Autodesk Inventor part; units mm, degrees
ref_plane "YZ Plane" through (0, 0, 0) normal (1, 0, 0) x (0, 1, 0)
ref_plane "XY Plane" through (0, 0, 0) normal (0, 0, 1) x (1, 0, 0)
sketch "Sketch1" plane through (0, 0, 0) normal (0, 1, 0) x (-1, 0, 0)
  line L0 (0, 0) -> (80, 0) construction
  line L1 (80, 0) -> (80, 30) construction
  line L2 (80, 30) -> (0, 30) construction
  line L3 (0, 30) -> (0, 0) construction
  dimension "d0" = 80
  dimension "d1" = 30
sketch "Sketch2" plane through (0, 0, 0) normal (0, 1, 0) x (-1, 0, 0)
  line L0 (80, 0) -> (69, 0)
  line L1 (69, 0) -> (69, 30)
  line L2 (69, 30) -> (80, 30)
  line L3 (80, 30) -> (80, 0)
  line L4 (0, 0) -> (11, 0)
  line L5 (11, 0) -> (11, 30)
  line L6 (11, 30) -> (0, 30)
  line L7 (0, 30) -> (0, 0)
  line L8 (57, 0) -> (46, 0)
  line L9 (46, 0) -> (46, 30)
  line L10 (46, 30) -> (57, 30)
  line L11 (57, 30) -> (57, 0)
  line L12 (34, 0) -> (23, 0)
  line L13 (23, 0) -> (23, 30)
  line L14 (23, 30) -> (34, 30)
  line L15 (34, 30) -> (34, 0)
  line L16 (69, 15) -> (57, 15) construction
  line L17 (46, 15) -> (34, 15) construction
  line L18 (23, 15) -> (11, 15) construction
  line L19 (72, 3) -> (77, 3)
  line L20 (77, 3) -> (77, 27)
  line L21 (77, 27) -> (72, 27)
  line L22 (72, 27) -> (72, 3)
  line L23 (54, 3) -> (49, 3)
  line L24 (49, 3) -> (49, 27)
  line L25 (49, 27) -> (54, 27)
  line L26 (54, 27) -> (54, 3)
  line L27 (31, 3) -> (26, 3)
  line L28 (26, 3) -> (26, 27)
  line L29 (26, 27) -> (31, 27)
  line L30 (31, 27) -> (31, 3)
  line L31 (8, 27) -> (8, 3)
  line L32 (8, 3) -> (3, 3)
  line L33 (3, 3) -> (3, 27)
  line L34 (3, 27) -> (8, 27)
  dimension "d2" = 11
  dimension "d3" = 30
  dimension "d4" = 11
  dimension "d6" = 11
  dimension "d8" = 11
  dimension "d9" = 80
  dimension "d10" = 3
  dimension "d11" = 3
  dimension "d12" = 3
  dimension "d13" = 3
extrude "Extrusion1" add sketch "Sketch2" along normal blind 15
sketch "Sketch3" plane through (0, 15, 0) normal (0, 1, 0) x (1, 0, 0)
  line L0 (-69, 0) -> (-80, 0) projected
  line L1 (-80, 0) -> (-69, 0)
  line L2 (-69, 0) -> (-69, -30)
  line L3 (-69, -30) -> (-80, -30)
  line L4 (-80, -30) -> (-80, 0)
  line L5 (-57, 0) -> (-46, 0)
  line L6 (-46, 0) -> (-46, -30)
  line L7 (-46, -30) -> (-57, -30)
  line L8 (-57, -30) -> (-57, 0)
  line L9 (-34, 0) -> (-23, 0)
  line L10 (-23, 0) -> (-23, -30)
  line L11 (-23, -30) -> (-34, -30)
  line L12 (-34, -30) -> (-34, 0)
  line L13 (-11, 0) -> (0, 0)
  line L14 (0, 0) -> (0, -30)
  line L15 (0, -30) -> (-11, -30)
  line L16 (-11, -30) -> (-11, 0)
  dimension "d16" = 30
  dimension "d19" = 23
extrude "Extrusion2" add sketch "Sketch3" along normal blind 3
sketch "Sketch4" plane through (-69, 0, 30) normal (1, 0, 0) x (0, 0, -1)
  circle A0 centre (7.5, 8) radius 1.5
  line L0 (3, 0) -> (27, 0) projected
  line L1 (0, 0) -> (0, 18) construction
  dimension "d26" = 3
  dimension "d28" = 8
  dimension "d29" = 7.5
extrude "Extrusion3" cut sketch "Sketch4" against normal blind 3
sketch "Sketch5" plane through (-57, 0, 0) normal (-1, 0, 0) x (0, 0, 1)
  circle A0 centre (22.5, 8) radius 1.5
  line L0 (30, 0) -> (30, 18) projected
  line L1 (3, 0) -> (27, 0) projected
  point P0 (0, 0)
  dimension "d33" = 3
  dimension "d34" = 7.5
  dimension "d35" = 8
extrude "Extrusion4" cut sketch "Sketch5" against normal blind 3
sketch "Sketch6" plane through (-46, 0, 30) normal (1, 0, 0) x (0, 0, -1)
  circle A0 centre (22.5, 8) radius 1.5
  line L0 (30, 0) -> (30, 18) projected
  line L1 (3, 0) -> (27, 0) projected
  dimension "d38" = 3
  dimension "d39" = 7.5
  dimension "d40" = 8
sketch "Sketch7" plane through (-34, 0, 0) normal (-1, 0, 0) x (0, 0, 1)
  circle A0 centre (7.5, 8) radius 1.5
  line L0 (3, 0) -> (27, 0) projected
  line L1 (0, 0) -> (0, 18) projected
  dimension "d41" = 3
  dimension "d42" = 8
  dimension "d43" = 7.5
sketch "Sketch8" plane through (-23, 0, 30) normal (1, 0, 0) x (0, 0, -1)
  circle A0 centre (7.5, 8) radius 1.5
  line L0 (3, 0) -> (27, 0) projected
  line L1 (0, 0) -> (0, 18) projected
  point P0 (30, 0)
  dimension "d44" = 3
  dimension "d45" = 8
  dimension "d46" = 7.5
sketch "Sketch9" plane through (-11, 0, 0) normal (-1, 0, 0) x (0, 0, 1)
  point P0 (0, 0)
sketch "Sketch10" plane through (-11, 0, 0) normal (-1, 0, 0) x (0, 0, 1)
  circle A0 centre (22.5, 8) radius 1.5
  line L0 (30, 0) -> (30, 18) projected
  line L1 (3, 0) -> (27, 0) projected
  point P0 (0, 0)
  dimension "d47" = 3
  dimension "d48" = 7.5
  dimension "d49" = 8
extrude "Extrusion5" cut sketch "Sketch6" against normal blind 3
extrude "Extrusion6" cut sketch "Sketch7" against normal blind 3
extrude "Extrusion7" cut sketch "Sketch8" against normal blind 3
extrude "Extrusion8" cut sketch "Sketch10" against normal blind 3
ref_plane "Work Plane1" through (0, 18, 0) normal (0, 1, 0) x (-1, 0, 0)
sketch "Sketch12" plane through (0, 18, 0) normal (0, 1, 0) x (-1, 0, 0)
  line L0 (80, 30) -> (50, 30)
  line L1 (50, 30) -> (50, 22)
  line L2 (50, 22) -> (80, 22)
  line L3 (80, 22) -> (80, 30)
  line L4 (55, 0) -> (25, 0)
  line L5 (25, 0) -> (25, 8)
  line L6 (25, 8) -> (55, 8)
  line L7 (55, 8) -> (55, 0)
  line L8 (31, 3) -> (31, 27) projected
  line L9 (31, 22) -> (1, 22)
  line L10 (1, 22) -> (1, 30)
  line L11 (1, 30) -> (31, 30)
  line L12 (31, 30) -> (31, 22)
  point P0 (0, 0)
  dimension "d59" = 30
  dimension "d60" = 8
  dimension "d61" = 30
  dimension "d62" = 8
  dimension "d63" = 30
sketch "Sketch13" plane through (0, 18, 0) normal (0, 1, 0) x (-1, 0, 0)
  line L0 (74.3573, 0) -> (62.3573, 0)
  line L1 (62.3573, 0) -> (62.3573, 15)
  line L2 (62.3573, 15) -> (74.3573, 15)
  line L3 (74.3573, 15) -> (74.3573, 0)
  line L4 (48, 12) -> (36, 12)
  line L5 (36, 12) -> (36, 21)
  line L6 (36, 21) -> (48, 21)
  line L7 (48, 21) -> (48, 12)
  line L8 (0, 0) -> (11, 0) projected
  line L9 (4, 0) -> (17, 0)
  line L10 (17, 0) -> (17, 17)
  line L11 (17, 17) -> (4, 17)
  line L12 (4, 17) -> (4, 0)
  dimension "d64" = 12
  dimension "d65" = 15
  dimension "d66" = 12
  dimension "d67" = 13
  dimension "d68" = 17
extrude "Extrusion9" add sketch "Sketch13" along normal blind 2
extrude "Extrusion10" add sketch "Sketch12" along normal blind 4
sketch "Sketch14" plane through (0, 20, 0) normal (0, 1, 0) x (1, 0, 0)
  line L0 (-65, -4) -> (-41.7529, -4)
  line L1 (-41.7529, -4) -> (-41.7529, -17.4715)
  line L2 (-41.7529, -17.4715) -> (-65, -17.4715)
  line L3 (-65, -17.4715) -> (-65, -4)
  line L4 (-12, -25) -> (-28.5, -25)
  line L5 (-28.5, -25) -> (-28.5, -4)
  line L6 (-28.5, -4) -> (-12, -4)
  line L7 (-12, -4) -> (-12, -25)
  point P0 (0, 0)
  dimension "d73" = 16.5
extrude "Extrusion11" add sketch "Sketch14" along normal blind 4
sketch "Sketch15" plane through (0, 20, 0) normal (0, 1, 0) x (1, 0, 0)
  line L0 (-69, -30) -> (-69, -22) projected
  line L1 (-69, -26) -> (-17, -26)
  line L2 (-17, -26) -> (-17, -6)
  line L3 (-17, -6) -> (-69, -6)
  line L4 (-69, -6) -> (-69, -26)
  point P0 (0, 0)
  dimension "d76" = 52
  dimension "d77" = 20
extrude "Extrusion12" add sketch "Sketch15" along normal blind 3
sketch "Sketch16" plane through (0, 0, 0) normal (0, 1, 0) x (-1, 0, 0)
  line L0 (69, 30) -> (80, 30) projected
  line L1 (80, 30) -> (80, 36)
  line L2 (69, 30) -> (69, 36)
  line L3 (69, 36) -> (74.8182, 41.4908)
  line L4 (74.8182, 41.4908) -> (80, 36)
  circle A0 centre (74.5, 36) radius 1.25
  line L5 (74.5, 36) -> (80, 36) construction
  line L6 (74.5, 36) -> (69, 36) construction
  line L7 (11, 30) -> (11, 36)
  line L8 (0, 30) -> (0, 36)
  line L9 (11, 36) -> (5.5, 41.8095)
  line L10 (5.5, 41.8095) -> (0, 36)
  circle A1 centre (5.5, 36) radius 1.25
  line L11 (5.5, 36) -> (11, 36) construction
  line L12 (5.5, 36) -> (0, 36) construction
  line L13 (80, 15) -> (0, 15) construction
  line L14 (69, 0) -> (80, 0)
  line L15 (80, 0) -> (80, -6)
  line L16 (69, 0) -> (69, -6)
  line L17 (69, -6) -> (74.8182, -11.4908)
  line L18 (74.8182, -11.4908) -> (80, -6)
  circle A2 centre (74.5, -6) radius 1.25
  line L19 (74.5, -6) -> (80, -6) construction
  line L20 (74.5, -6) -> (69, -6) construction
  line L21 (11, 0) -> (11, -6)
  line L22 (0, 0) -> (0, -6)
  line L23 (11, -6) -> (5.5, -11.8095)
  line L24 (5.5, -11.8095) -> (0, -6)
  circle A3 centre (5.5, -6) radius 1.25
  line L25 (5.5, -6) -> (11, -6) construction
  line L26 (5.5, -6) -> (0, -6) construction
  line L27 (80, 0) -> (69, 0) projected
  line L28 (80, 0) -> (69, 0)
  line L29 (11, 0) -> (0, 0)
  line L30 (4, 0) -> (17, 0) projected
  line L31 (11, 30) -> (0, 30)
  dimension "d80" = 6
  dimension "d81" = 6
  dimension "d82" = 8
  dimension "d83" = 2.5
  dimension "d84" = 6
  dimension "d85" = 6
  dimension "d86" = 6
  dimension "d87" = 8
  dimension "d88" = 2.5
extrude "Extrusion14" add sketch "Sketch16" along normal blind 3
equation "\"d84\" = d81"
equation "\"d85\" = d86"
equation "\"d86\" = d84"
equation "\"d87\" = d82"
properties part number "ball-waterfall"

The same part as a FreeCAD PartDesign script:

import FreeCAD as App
import Part
import Sketcher

doc = App.newDocument("Part")
body = doc.addObject("PartDesign::Body", "Body")
body.AllowCompound = True

sketch1 = doc.addObject("Sketcher::SketchObject", "Sketch")
body.addObject(sketch1)
sketch1.AttachmentSupport = (doc.XZ_Plane, [""])
sketch1.MapMode = "FlatFace"
sketch1.addGeometry(Part.LineSegment(App.Vector(-69, 0, 0), App.Vector(-80, 0, 0)), False)
sketch1.addGeometry(Part.LineSegment(App.Vector(-80, 0, 0), App.Vector(-80, 30, 0)), False)
sketch1.addGeometry(Part.LineSegment(App.Vector(-80, 30, 0), App.Vector(-69, 30, 0)), False)
sketch1.addGeometry(Part.LineSegment(App.Vector(-69, 30, 0), App.Vector(-69, 0, 0)), False)
sketch1.addGeometry(Part.LineSegment(App.Vector(-77, 3, 0), App.Vector(-72, 3, 0)), False)
sketch1.addGeometry(Part.LineSegment(App.Vector(-72, 3, 0), App.Vector(-72, 27, 0)), False)
sketch1.addGeometry(Part.LineSegment(App.Vector(-72, 27, 0), App.Vector(-77, 27, 0)), False)
sketch1.addGeometry(Part.LineSegment(App.Vector(-77, 27, 0), App.Vector(-77, 3, 0)), False)
sketch1.addGeometry(Part.LineSegment(App.Vector(0, 30, 0), App.Vector(0, 0, 0)), False)
sketch1.addGeometry(Part.LineSegment(App.Vector(0, 0, 0), App.Vector(-11, 0, 0)), False)
sketch1.addGeometry(Part.LineSegment(App.Vector(-11, 0, 0), App.Vector(-11, 30, 0)), False)
sketch1.addGeometry(Part.LineSegment(App.Vector(-11, 30, 0), App.Vector(0, 30, 0)), False)
sketch1.addGeometry(Part.LineSegment(App.Vector(-3, 27, 0), App.Vector(-8, 27, 0)), False)
sketch1.addGeometry(Part.LineSegment(App.Vector(-8, 27, 0), App.Vector(-8, 3, 0)), False)
sketch1.addGeometry(Part.LineSegment(App.Vector(-8, 3, 0), App.Vector(-3, 3, 0)), False)
sketch1.addGeometry(Part.LineSegment(App.Vector(-3, 3, 0), App.Vector(-3, 27, 0)), False)
sketch1.addGeometry(Part.LineSegment(App.Vector(-46, 0, 0), App.Vector(-57, 0, 0)), False)
sketch1.addGeometry(Part.LineSegment(App.Vector(-57, 0, 0), App.Vector(-57, 30, 0)), False)
sketch1.addGeometry(Part.LineSegment(App.Vector(-57, 30, 0), App.Vector(-46, 30, 0)), False)
sketch1.addGeometry(Part.LineSegment(App.Vector(-46, 30, 0), App.Vector(-46, 0, 0)), False)
sketch1.addGeometry(Part.LineSegment(App.Vector(-54, 27, 0), App.Vector(-54, 3, 0)), False)
sketch1.addGeometry(Part.LineSegment(App.Vector(-54, 3, 0), App.Vector(-49, 3, 0)), False)
sketch1.addGeometry(Part.LineSegment(App.Vector(-49, 3, 0), App.Vector(-49, 27, 0)), False)
sketch1.addGeometry(Part.LineSegment(App.Vector(-49, 27, 0), App.Vector(-54, 27, 0)), False)
sketch1.addGeometry(Part.LineSegment(App.Vector(-23, 0, 0), App.Vector(-34, 0, 0)), False)
sketch1.addGeometry(Part.LineSegment(App.Vector(-34, 0, 0), App.Vector(-34, 30, 0)), False)
sketch1.addGeometry(Part.LineSegment(App.Vector(-34, 30, 0), App.Vector(-23, 30, 0)), False)
sketch1.addGeometry(Part.LineSegment(App.Vector(-23, 30, 0), App.Vector(-23, 0, 0)), False)
sketch1.addGeometry(Part.LineSegment(App.Vector(-31, 27, 0), App.Vector(-31, 3, 0)), False)
sketch1.addGeometry(Part.LineSegment(App.Vector(-31, 3, 0), App.Vector(-26, 3, 0)), False)
sketch1.addGeometry(Part.LineSegment(App.Vector(-26, 3, 0), App.Vector(-26, 27, 0)), False)
sketch1.addGeometry(Part.LineSegment(App.Vector(-26, 27, 0), App.Vector(-31, 27, 0)), False)
sketch1.addConstraint(Sketcher.Constraint("Coincident", 0, 2, 1, 1))
sketch1.addConstraint(Sketcher.Constraint("Coincident", 1, 2, 2, 1))
sketch1.addConstraint(Sketcher.Constraint("Coincident", 2, 2, 3, 1))
sketch1.addConstraint(Sketcher.Constraint("Coincident", 3, 2, 0, 1))
sketch1.addConstraint(Sketcher.Constraint("Coincident", 4, 2, 5, 1))
sketch1.addConstraint(Sketcher.Constraint("Coincident", 5, 2, 6, 1))
sketch1.addConstraint(Sketcher.Constraint("Coincident", 6, 2, 7, 1))
sketch1.addConstraint(Sketcher.Constraint("Coincident", 7, 2, 4, 1))
sketch1.addConstraint(Sketcher.Constraint("Coincident", 8, 2, 9, 1))
sketch1.addConstraint(Sketcher.Constraint("Coincident", 9, 2, 10, 1))
sketch1.addConstraint(Sketcher.Constraint("Coincident", 10, 2, 11, 1))
sketch1.addConstraint(Sketcher.Constraint("Coincident", 11, 2, 8, 1))
sketch1.addConstraint(Sketcher.Constraint("Coincident", 12, 2, 13, 1))
sketch1.addConstraint(Sketcher.Constraint("Coincident", 13, 2, 14, 1))
sketch1.addConstraint(Sketcher.Constraint("Coincident", 14, 2, 15, 1))
sketch1.addConstraint(Sketcher.Constraint("Coincident", 15, 2, 12, 1))
sketch1.addConstraint(Sketcher.Constraint("Coincident", 16, 2, 17, 1))
sketch1.addConstraint(Sketcher.Constraint("Coincident", 17, 2, 18, 1))
sketch1.addConstraint(Sketcher.Constraint("Coincident", 18, 2, 19, 1))
sketch1.addConstraint(Sketcher.Constraint("Coincident", 19, 2, 16, 1))
sketch1.addConstraint(Sketcher.Constraint("Coincident", 20, 2, 21, 1))
sketch1.addConstraint(Sketcher.Constraint("Coincident", 21, 2, 22, 1))
sketch1.addConstraint(Sketcher.Constraint("Coincident", 22, 2, 23, 1))
sketch1.addConstraint(Sketcher.Constraint("Coincident", 23, 2, 20, 1))
sketch1.addConstraint(Sketcher.Constraint("Coincident", 24, 2, 25, 1))
sketch1.addConstraint(Sketcher.Constraint("Coincident", 25, 2, 26, 1))
sketch1.addConstraint(Sketcher.Constraint("Coincident", 26, 2, 27, 1))
sketch1.addConstraint(Sketcher.Constraint("Coincident", 27, 2, 24, 1))
sketch1.addConstraint(Sketcher.Constraint("Coincident", 28, 2, 29, 1))
sketch1.addConstraint(Sketcher.Constraint("Coincident", 29, 2, 30, 1))
sketch1.addConstraint(Sketcher.Constraint("Coincident", 30, 2, 31, 1))
sketch1.addConstraint(Sketcher.Constraint("Coincident", 31, 2, 28, 1))
sketch1.addConstraint(Sketcher.Constraint("Horizontal", 0))
sketch1.addConstraint(Sketcher.Constraint("Vertical", 1))
sketch1.addConstraint(Sketcher.Constraint("Horizontal", 2))
sketch1.addConstraint(Sketcher.Constraint("Vertical", 3))
sketch1.addConstraint(Sketcher.Constraint("Horizontal", 4))
sketch1.addConstraint(Sketcher.Constraint("Vertical", 5))
sketch1.addConstraint(Sketcher.Constraint("Horizontal", 6))
sketch1.addConstraint(Sketcher.Constraint("Vertical", 7))
sketch1.addConstraint(Sketcher.Constraint("Vertical", 8))
sketch1.addConstraint(Sketcher.Constraint("Horizontal", 9))
sketch1.addConstraint(Sketcher.Constraint("Vertical", 10))
sketch1.addConstraint(Sketcher.Constraint("Horizontal", 11))
sketch1.addConstraint(Sketcher.Constraint("Horizontal", 12))
sketch1.addConstraint(Sketcher.Constraint("Vertical", 13))
sketch1.addConstraint(Sketcher.Constraint("Horizontal", 14))
sketch1.addConstraint(Sketcher.Constraint("Vertical", 15))
sketch1.addConstraint(Sketcher.Constraint("Horizontal", 16))
sketch1.addConstraint(Sketcher.Constraint("Vertical", 17))
sketch1.addConstraint(Sketcher.Constraint("Horizontal", 18))
sketch1.addConstraint(Sketcher.Constraint("Vertical", 19))
sketch1.addConstraint(Sketcher.Constraint("Vertical", 20))
sketch1.addConstraint(Sketcher.Constraint("Horizontal", 21))
sketch1.addConstraint(Sketcher.Constraint("Vertical", 22))
sketch1.addConstraint(Sketcher.Constraint("Horizontal", 23))
sketch1.addConstraint(Sketcher.Constraint("Horizontal", 24))
sketch1.addConstraint(Sketcher.Constraint("Vertical", 25))
sketch1.addConstraint(Sketcher.Constraint("Horizontal", 26))
sketch1.addConstraint(Sketcher.Constraint("Vertical", 27))
sketch1.addConstraint(Sketcher.Constraint("Vertical", 28))
sketch1.addConstraint(Sketcher.Constraint("Horizontal", 29))
sketch1.addConstraint(Sketcher.Constraint("Vertical", 30))
sketch1.addConstraint(Sketcher.Constraint("Horizontal", 31))
sketch1.addConstraint(Sketcher.Constraint("Coincident", 8, 2, -1, 1))
sketch1.addConstraint(Sketcher.Constraint("PointOnObject", 0, 2, -1))
sketch1.addConstraint(Sketcher.Constraint("PointOnObject", 16, 2, -1))
sketch1.addConstraint(Sketcher.Constraint("PointOnObject", 24, 2, -1))
sketch1.addConstraint(Sketcher.Constraint("Horizontal", 2, 2, 10, 2))
sketch1.addConstraint(Sketcher.Constraint("Horizontal", 6, 2, 12, 2))
sketch1.addConstraint(Sketcher.Constraint("Horizontal", 7, 2, 13, 2))
sketch1.addConstraint(Sketcher.Constraint("Horizontal", 11, 2, 17, 2))
sketch1.addConstraint(Sketcher.Constraint("Horizontal", 14, 2, 20, 2))
sketch1.addConstraint(Sketcher.Constraint("Horizontal", 15, 2, 22, 2))
sketch1.addConstraint(Sketcher.Constraint("Horizontal", 18, 2, 25, 2))
sketch1.addConstraint(Sketcher.Constraint("Horizontal", 21, 2, 28, 2))
sketch1.addConstraint(Sketcher.Constraint("Horizontal", 23, 2, 30, 2))
sketch1.addConstraint(Sketcher.Constraint("Equal", 2, 9))
sketch1.addConstraint(Sketcher.Constraint("Equal", 6, 12))
sketch1.addConstraint(Sketcher.Constraint("Equal", 11, 16))
sketch1.addConstraint(Sketcher.Constraint("Equal", 14, 21))
sketch1.addConstraint(Sketcher.Constraint("Equal", 18, 24))
sketch1.addConstraint(Sketcher.Constraint("Equal", 23, 29))
sketch1.addConstraint(Sketcher.Constraint("DistanceX", 0, 2, 0, 1, 11.0))
sketch1.addConstraint(Sketcher.Constraint("DistanceY", 1, 1, 1, 2, 30.0))
sketch1.addConstraint(Sketcher.Constraint("DistanceX", 0, 2, -1, 1, 80.0))
sketch1.addConstraint(Sketcher.Constraint("DistanceY", -1, 1, 4, 2, 3.0))
sketch1.addConstraint(Sketcher.Constraint("DistanceX", 14, 2, -1, 1, 3.0))
sketch1.addConstraint(Sketcher.Constraint("DistanceX", 4, 2, 3, 2, 3.0))
sketch1.addConstraint(Sketcher.Constraint("DistanceY", 5, 2, 2, 2, 3.0))
sketch1.addConstraint(Sketcher.Constraint("DistanceX", 1, 2, 6, 2, 3.0))
sketch1.addConstraint(Sketcher.Constraint("DistanceX", 16, 2, 20, 2, 3.0))
sketch1.addConstraint(Sketcher.Constraint("DistanceX", 24, 2, 28, 2, 3.0))
sketch1.addConstraint(Sketcher.Constraint("DistanceX", 16, 2, -1, 1, 57.0))
sketch1.addConstraint(Sketcher.Constraint("DistanceX", 24, 2, -1, 1, 34.0))
pad1 = doc.addObject("PartDesign::Pad", "Pad")
body.addObject(pad1)
pad1.Profile = sketch1
pad1.Length = 15
pad1.Reversed = True

sketch2 = doc.addObject("Sketcher::SketchObject", "Sketch001")
body.addObject(sketch2)
sketch2.AttachmentSupport = (doc.XZ_Plane, [""])
sketch2.MapMode = "FlatFace"
sketch2.AttachmentOffset = App.Placement(App.Vector(0, 0, -15), App.Rotation())
sketch2.addGeometry(Part.LineSegment(App.Vector(-69, 30, 0), App.Vector(-69, 0, 0)), False)
sketch2.addGeometry(Part.LineSegment(App.Vector(-69, 0, 0), App.Vector(-80, 0, 0)), False)
sketch2.addGeometry(Part.LineSegment(App.Vector(-80, 0, 0), App.Vector(-80, 30, 0)), False)
sketch2.addGeometry(Part.LineSegment(App.Vector(-80, 30, 0), App.Vector(-69, 30, 0)), False)
sketch2.addGeometry(Part.LineSegment(App.Vector(-46, 0, 0), App.Vector(-57, 0, 0)), False)
sketch2.addGeometry(Part.LineSegment(App.Vector(-57, 0, 0), App.Vector(-57, 30, 0)), False)
sketch2.addGeometry(Part.LineSegment(App.Vector(-57, 30, 0), App.Vector(-46, 30, 0)), False)
sketch2.addGeometry(Part.LineSegment(App.Vector(-46, 30, 0), App.Vector(-46, 0, 0)), False)
sketch2.addGeometry(Part.LineSegment(App.Vector(-23, 0, 0), App.Vector(-34, 0, 0)), False)
sketch2.addGeometry(Part.LineSegment(App.Vector(-34, 0, 0), App.Vector(-34, 30, 0)), False)
sketch2.addGeometry(Part.LineSegment(App.Vector(-34, 30, 0), App.Vector(-23, 30, 0)), False)
sketch2.addGeometry(Part.LineSegment(App.Vector(-23, 30, 0), App.Vector(-23, 0, 0)), False)
sketch2.addGeometry(Part.LineSegment(App.Vector(0, 0, 0), App.Vector(-11, 0, 0)), False)
sketch2.addGeometry(Part.LineSegment(App.Vector(-11, 0, 0), App.Vector(-11, 30, 0)), False)
sketch2.addGeometry(Part.LineSegment(App.Vector(-11, 30, 0), App.Vector(0, 30, 0)), False)
sketch2.addGeometry(Part.LineSegment(App.Vector(0, 30, 0), App.Vector(0, 0, 0)), False)
sketch2.addConstraint(Sketcher.Constraint("Coincident", 0, 2, 1, 1))
sketch2.addConstraint(Sketcher.Constraint("Coincident", 1, 2, 2, 1))
sketch2.addConstraint(Sketcher.Constraint("Coincident", 2, 2, 3, 1))
sketch2.addConstraint(Sketcher.Constraint("Coincident", 3, 2, 0, 1))
sketch2.addConstraint(Sketcher.Constraint("Coincident", 4, 2, 5, 1))
sketch2.addConstraint(Sketcher.Constraint("Coincident", 5, 2, 6, 1))
sketch2.addConstraint(Sketcher.Constraint("Coincident", 6, 2, 7, 1))
sketch2.addConstraint(Sketcher.Constraint("Coincident", 7, 2, 4, 1))
sketch2.addConstraint(Sketcher.Constraint("Coincident", 8, 2, 9, 1))
sketch2.addConstraint(Sketcher.Constraint("Coincident", 9, 2, 10, 1))
sketch2.addConstraint(Sketcher.Constraint("Coincident", 10, 2, 11, 1))
sketch2.addConstraint(Sketcher.Constraint("Coincident", 11, 2, 8, 1))
sketch2.addConstraint(Sketcher.Constraint("Coincident", 12, 2, 13, 1))
sketch2.addConstraint(Sketcher.Constraint("Coincident", 13, 2, 14, 1))
sketch2.addConstraint(Sketcher.Constraint("Coincident", 14, 2, 15, 1))
sketch2.addConstraint(Sketcher.Constraint("Coincident", 15, 2, 12, 1))
sketch2.addConstraint(Sketcher.Constraint("Vertical", 0))
sketch2.addConstraint(Sketcher.Constraint("Horizontal", 1))
sketch2.addConstraint(Sketcher.Constraint("Vertical", 2))
sketch2.addConstraint(Sketcher.Constraint("Horizontal", 3))
sketch2.addConstraint(Sketcher.Constraint("Horizontal", 4))
sketch2.addConstraint(Sketcher.Constraint("Vertical", 5))
sketch2.addConstraint(Sketcher.Constraint("Horizontal", 6))
sketch2.addConstraint(Sketcher.Constraint("Vertical", 7))
sketch2.addConstraint(Sketcher.Constraint("Horizontal", 8))
sketch2.addConstraint(Sketcher.Constraint("Vertical", 9))
sketch2.addConstraint(Sketcher.Constraint("Horizontal", 10))
sketch2.addConstraint(Sketcher.Constraint("Vertical", 11))
sketch2.addConstraint(Sketcher.Constraint("Horizontal", 12))
sketch2.addConstraint(Sketcher.Constraint("Vertical", 13))
sketch2.addConstraint(Sketcher.Constraint("Horizontal", 14))
sketch2.addConstraint(Sketcher.Constraint("Vertical", 15))
sketch2.addConstraint(Sketcher.Constraint("Coincident", 15, 2, -1, 1))
sketch2.addConstraint(Sketcher.Constraint("PointOnObject", 0, 2, -1))
sketch2.addConstraint(Sketcher.Constraint("PointOnObject", 4, 2, -1))
sketch2.addConstraint(Sketcher.Constraint("PointOnObject", 8, 2, -1))
sketch2.addConstraint(Sketcher.Constraint("Horizontal", 3, 2, 5, 2))
sketch2.addConstraint(Sketcher.Constraint("Horizontal", 6, 2, 9, 2))
sketch2.addConstraint(Sketcher.Constraint("Horizontal", 10, 2, 13, 2))
sketch2.addConstraint(Sketcher.Constraint("Equal", 3, 4))
sketch2.addConstraint(Sketcher.Constraint("Equal", 6, 8))
sketch2.addConstraint(Sketcher.Constraint("Equal", 10, 12))
sketch2.addConstraint(Sketcher.Constraint("DistanceY", 0, 2, 0, 1, 30.0))
sketch2.addConstraint(Sketcher.Constraint("DistanceX", 10, 2, -1, 1, 23.0))
sketch2.addConstraint(Sketcher.Constraint("DistanceX", 1, 2, 4, 2, 23.0))
sketch2.addConstraint(Sketcher.Constraint("DistanceX", 4, 2, 8, 2, 23.0))
sketch2.addConstraint(Sketcher.Constraint("DistanceX", 1, 2, 1, 1, 11.0))
pad2 = doc.addObject("PartDesign::Pad", "Pad001")
body.addObject(pad2)
pad2.Profile = sketch2
pad2.Length = 3
pad2.Reversed = True

sketch3 = doc.addObject("Sketcher::SketchObject", "Sketch002")
body.addObject(sketch3)
sketch3.AttachmentSupport = (doc.YZ_Plane, [""])
sketch3.MapMode = "FlatFace"
sketch3.AttachmentOffset = App.Placement(App.Vector(0, 0, -69), App.Rotation())
sketch3.addGeometry(Part.Circle(App.Vector(8, 22.5, 0), App.Vector(0, 0, 1), 1.5), False)
sketch3.addConstraint(Sketcher.Constraint("Diameter", 0, 3.0))
sketch3.addConstraint(Sketcher.Constraint("DistanceX", -1, 1, 0, 3, 8.0))
sketch3.addConstraint(Sketcher.Constraint("DistanceY", -1, 1, 0, 3, 22.5))
pocket1 = doc.addObject("PartDesign::Pocket", "Pocket")
body.addObject(pocket1)
pocket1.Profile = sketch3
pocket1.Length = 3

sketch4 = doc.addObject("Sketcher::SketchObject", "Sketch003")
body.addObject(sketch4)
sketch4.AttachmentSupport = (doc.YZ_Plane, [""])
sketch4.MapMode = "FlatFace"
sketch4.AttachmentOffset = App.Placement(App.Vector(0, 0, -57), App.Rotation())
sketch4.addGeometry(Part.Circle(App.Vector(8, 22.5, 0), App.Vector(0, 0, 1), 1.5), False)
sketch4.addConstraint(Sketcher.Constraint("Diameter", 0, 3.0))
sketch4.addConstraint(Sketcher.Constraint("DistanceX", -1, 1, 0, 3, 8.0))
sketch4.addConstraint(Sketcher.Constraint("DistanceY", -1, 1, 0, 3, 22.5))
pocket2 = doc.addObject("PartDesign::Pocket", "Pocket001")
body.addObject(pocket2)
pocket2.Profile = sketch4
pocket2.Length = 3
pocket2.Reversed = True

sketch5 = doc.addObject("Sketcher::SketchObject", "Sketch004")
body.addObject(sketch5)
sketch5.AttachmentSupport = (doc.YZ_Plane, [""])
sketch5.MapMode = "FlatFace"
sketch5.AttachmentOffset = App.Placement(App.Vector(0, 0, -46), App.Rotation())
sketch5.addGeometry(Part.Circle(App.Vector(8, 7.5, 0), App.Vector(0, 0, 1), 1.5), False)
sketch5.addConstraint(Sketcher.Constraint("Diameter", 0, 3.0))
sketch5.addConstraint(Sketcher.Constraint("DistanceX", -1, 1, 0, 3, 8.0))
sketch5.addConstraint(Sketcher.Constraint("DistanceY", -1, 1, 0, 3, 7.5))
pocket3 = doc.addObject("PartDesign::Pocket", "Pocket002")
body.addObject(pocket3)
pocket3.Profile = sketch5
pocket3.Length = 3

sketch6 = doc.addObject("Sketcher::SketchObject", "Sketch005")
body.addObject(sketch6)
sketch6.AttachmentSupport = (doc.YZ_Plane, [""])
sketch6.MapMode = "FlatFace"
sketch6.AttachmentOffset = App.Placement(App.Vector(0, 0, -34), App.Rotation())
sketch6.addGeometry(Part.Circle(App.Vector(8, 7.5, 0), App.Vector(0, 0, 1), 1.5), False)
sketch6.addConstraint(Sketcher.Constraint("Diameter", 0, 3.0))
sketch6.addConstraint(Sketcher.Constraint("DistanceX", -1, 1, 0, 3, 8.0))
sketch6.addConstraint(Sketcher.Constraint("DistanceY", -1, 1, 0, 3, 7.5))
pocket4 = doc.addObject("PartDesign::Pocket", "Pocket003")
body.addObject(pocket4)
pocket4.Profile = sketch6
pocket4.Length = 3
pocket4.Reversed = True

sketch7 = doc.addObject("Sketcher::SketchObject", "Sketch006")
body.addObject(sketch7)
sketch7.AttachmentSupport = (doc.YZ_Plane, [""])
sketch7.MapMode = "FlatFace"
sketch7.AttachmentOffset = App.Placement(App.Vector(0, 0, -23), App.Rotation())
sketch7.addGeometry(Part.Circle(App.Vector(8, 22.5, 0), App.Vector(0, 0, 1), 1.5), False)
sketch7.addConstraint(Sketcher.Constraint("Diameter", 0, 3.0))
sketch7.addConstraint(Sketcher.Constraint("DistanceX", -1, 1, 0, 3, 8.0))
sketch7.addConstraint(Sketcher.Constraint("DistanceY", -1, 1, 0, 3, 22.5))
pocket5 = doc.addObject("PartDesign::Pocket", "Pocket004")
body.addObject(pocket5)
pocket5.Profile = sketch7
pocket5.Length = 3

sketch8 = doc.addObject("Sketcher::SketchObject", "Sketch007")
body.addObject(sketch8)
sketch8.AttachmentSupport = (doc.YZ_Plane, [""])
sketch8.MapMode = "FlatFace"
sketch8.AttachmentOffset = App.Placement(App.Vector(0, 0, -11), App.Rotation())
sketch8.addGeometry(Part.Circle(App.Vector(8, 22.5, 0), App.Vector(0, 0, 1), 1.5), False)
sketch8.addConstraint(Sketcher.Constraint("Diameter", 0, 3.0))
sketch8.addConstraint(Sketcher.Constraint("DistanceX", -1, 1, 0, 3, 8.0))
sketch8.addConstraint(Sketcher.Constraint("DistanceY", -1, 1, 0, 3, 22.5))
pocket6 = doc.addObject("PartDesign::Pocket", "Pocket005")
body.addObject(pocket6)
pocket6.Profile = sketch8
pocket6.Length = 3
pocket6.Reversed = True

sketch9 = doc.addObject("Sketcher::SketchObject", "Sketch008")
body.addObject(sketch9)
sketch9.AttachmentSupport = (doc.XZ_Plane, [""])
sketch9.MapMode = "FlatFace"
sketch9.AttachmentOffset = App.Placement(App.Vector(0, 0, -18), App.Rotation())
sketch9.addGeometry(Part.LineSegment(App.Vector(-62, 0, 0), App.Vector(-74, 0, 0)), False)
sketch9.addGeometry(Part.LineSegment(App.Vector(-74, 0, 0), App.Vector(-74, 15, 0)), False)
sketch9.addGeometry(Part.LineSegment(App.Vector(-74, 15, 0), App.Vector(-62, 15, 0)), False)
sketch9.addGeometry(Part.LineSegment(App.Vector(-62, 15, 0), App.Vector(-62, 0, 0)), False)
sketch9.addGeometry(Part.LineSegment(App.Vector(-36, 12, 0), App.Vector(-48, 12, 0)), False)
sketch9.addGeometry(Part.LineSegment(App.Vector(-48, 12, 0), App.Vector(-48, 21, 0)), False)
sketch9.addGeometry(Part.LineSegment(App.Vector(-48, 21, 0), App.Vector(-36, 21, 0)), False)
sketch9.addGeometry(Part.LineSegment(App.Vector(-36, 21, 0), App.Vector(-36, 12, 0)), False)
sketch9.addGeometry(Part.LineSegment(App.Vector(-4, 17, 0), App.Vector(-4, 0, 0)), False)
sketch9.addGeometry(Part.LineSegment(App.Vector(-4, 0, 0), App.Vector(-17, 0, 0)), False)
sketch9.addGeometry(Part.LineSegment(App.Vector(-17, 0, 0), App.Vector(-17, 17, 0)), False)
sketch9.addGeometry(Part.LineSegment(App.Vector(-17, 17, 0), App.Vector(-4, 17, 0)), False)
sketch9.addConstraint(Sketcher.Constraint("Coincident", 0, 2, 1, 1))
sketch9.addConstraint(Sketcher.Constraint("Coincident", 1, 2, 2, 1))
sketch9.addConstraint(Sketcher.Constraint("Coincident", 2, 2, 3, 1))
sketch9.addConstraint(Sketcher.Constraint("Coincident", 3, 2, 0, 1))
sketch9.addConstraint(Sketcher.Constraint("Coincident", 4, 2, 5, 1))
sketch9.addConstraint(Sketcher.Constraint("Coincident", 5, 2, 6, 1))
sketch9.addConstraint(Sketcher.Constraint("Coincident", 6, 2, 7, 1))
sketch9.addConstraint(Sketcher.Constraint("Coincident", 7, 2, 4, 1))
sketch9.addConstraint(Sketcher.Constraint("Coincident", 8, 2, 9, 1))
sketch9.addConstraint(Sketcher.Constraint("Coincident", 9, 2, 10, 1))
sketch9.addConstraint(Sketcher.Constraint("Coincident", 10, 2, 11, 1))
sketch9.addConstraint(Sketcher.Constraint("Coincident", 11, 2, 8, 1))
sketch9.addConstraint(Sketcher.Constraint("Horizontal", 0))
sketch9.addConstraint(Sketcher.Constraint("Vertical", 1))
sketch9.addConstraint(Sketcher.Constraint("Horizontal", 2))
sketch9.addConstraint(Sketcher.Constraint("Vertical", 3))
sketch9.addConstraint(Sketcher.Constraint("Horizontal", 4))
sketch9.addConstraint(Sketcher.Constraint("Vertical", 5))
sketch9.addConstraint(Sketcher.Constraint("Horizontal", 6))
sketch9.addConstraint(Sketcher.Constraint("Vertical", 7))
sketch9.addConstraint(Sketcher.Constraint("Vertical", 8))
sketch9.addConstraint(Sketcher.Constraint("Horizontal", 9))
sketch9.addConstraint(Sketcher.Constraint("Vertical", 10))
sketch9.addConstraint(Sketcher.Constraint("Horizontal", 11))
sketch9.addConstraint(Sketcher.Constraint("PointOnObject", 0, 2, -1))
sketch9.addConstraint(Sketcher.Constraint("PointOnObject", 8, 2, -1))
sketch9.addConstraint(Sketcher.Constraint("Equal", 2, 4))
sketch9.addConstraint(Sketcher.Constraint("DistanceX", 0, 2, 0, 1, 12.0))
sketch9.addConstraint(Sketcher.Constraint("DistanceX", 9, 2, 9, 1, 13.0))
sketch9.addConstraint(Sketcher.Constraint("DistanceY", 1, 1, 1, 2, 15.0))
sketch9.addConstraint(Sketcher.Constraint("DistanceY", 8, 2, 8, 1, 17.0))
sketch9.addConstraint(Sketcher.Constraint("DistanceY", -1, 1, 4, 2, 12.0))
sketch9.addConstraint(Sketcher.Constraint("DistanceX", 9, 2, -1, 1, 17.0))
sketch9.addConstraint(Sketcher.Constraint("DistanceY", 5, 1, 5, 2, 9.0))
sketch9.addConstraint(Sketcher.Constraint("DistanceX", 4, 2, -1, 1, 48.0))
sketch9.addConstraint(Sketcher.Constraint("DistanceX", 0, 2, -1, 1, 74.3573))
pad3 = doc.addObject("PartDesign::Pad", "Pad002")
body.addObject(pad3)
pad3.Profile = sketch9
pad3.Length = 2
pad3.Reversed = True

sketch10 = doc.addObject("Sketcher::SketchObject", "Sketch009")
body.addObject(sketch10)
sketch10.AttachmentSupport = (doc.XZ_Plane, [""])
sketch10.MapMode = "FlatFace"
sketch10.AttachmentOffset = App.Placement(App.Vector(0, 0, -18), App.Rotation())
sketch10.addGeometry(Part.LineSegment(App.Vector(-80, 22, 0), App.Vector(-80, 30, 0)), False)
sketch10.addGeometry(Part.LineSegment(App.Vector(-80, 30, 0), App.Vector(-50, 30, 0)), False)
sketch10.addGeometry(Part.LineSegment(App.Vector(-50, 30, 0), App.Vector(-50, 22, 0)), False)
sketch10.addGeometry(Part.LineSegment(App.Vector(-50, 22, 0), App.Vector(-80, 22, 0)), False)
sketch10.addGeometry(Part.LineSegment(App.Vector(-1, 22, 0), App.Vector(-31, 22, 0)), False)
sketch10.addGeometry(Part.LineSegment(App.Vector(-31, 22, 0), App.Vector(-31, 30, 0)), False)
sketch10.addGeometry(Part.LineSegment(App.Vector(-31, 30, 0), App.Vector(-1, 30, 0)), False)
sketch10.addGeometry(Part.LineSegment(App.Vector(-1, 30, 0), App.Vector(-1, 22, 0)), False)
sketch10.addGeometry(Part.LineSegment(App.Vector(-25, 0, 0), App.Vector(-55, 0, 0)), False)
sketch10.addGeometry(Part.LineSegment(App.Vector(-55, 0, 0), App.Vector(-55, 8, 0)), False)
sketch10.addGeometry(Part.LineSegment(App.Vector(-55, 8, 0), App.Vector(-25, 8, 0)), False)
sketch10.addGeometry(Part.LineSegment(App.Vector(-25, 8, 0), App.Vector(-25, 0, 0)), False)
sketch10.addConstraint(Sketcher.Constraint("Coincident", 0, 2, 1, 1))
sketch10.addConstraint(Sketcher.Constraint("Coincident", 1, 2, 2, 1))
sketch10.addConstraint(Sketcher.Constraint("Coincident", 2, 2, 3, 1))
sketch10.addConstraint(Sketcher.Constraint("Coincident", 3, 2, 0, 1))
sketch10.addConstraint(Sketcher.Constraint("Coincident", 4, 2, 5, 1))
sketch10.addConstraint(Sketcher.Constraint("Coincident", 5, 2, 6, 1))
sketch10.addConstraint(Sketcher.Constraint("Coincident", 6, 2, 7, 1))
sketch10.addConstraint(Sketcher.Constraint("Coincident", 7, 2, 4, 1))
sketch10.addConstraint(Sketcher.Constraint("Coincident", 8, 2, 9, 1))
sketch10.addConstraint(Sketcher.Constraint("Coincident", 9, 2, 10, 1))
sketch10.addConstraint(Sketcher.Constraint("Coincident", 10, 2, 11, 1))
sketch10.addConstraint(Sketcher.Constraint("Coincident", 11, 2, 8, 1))
sketch10.addConstraint(Sketcher.Constraint("Vertical", 0))
sketch10.addConstraint(Sketcher.Constraint("Horizontal", 1))
sketch10.addConstraint(Sketcher.Constraint("Vertical", 2))
sketch10.addConstraint(Sketcher.Constraint("Horizontal", 3))
sketch10.addConstraint(Sketcher.Constraint("Horizontal", 4))
sketch10.addConstraint(Sketcher.Constraint("Vertical", 5))
sketch10.addConstraint(Sketcher.Constraint("Horizontal", 6))
sketch10.addConstraint(Sketcher.Constraint("Vertical", 7))
sketch10.addConstraint(Sketcher.Constraint("Horizontal", 8))
sketch10.addConstraint(Sketcher.Constraint("Vertical", 9))
sketch10.addConstraint(Sketcher.Constraint("Horizontal", 10))
sketch10.addConstraint(Sketcher.Constraint("Vertical", 11))
sketch10.addConstraint(Sketcher.Constraint("PointOnObject", 8, 2, -1))
sketch10.addConstraint(Sketcher.Constraint("Horizontal", 3, 2, 4, 2))
sketch10.addConstraint(Sketcher.Constraint("Horizontal", 1, 2, 5, 2))
sketch10.addConstraint(Sketcher.Constraint("Equal", 3, 4))
sketch10.addConstraint(Sketcher.Constraint("Equal", 6, 8))
sketch10.addConstraint(Sketcher.Constraint("Equal", 7, 9))
sketch10.addConstraint(Sketcher.Constraint("DistanceX", 1, 1, 1, 2, 30.0))
sketch10.addConstraint(Sketcher.Constraint("DistanceY", 0, 1, 0, 2, 8.0))
sketch10.addConstraint(Sketcher.Constraint("DistanceY", -1, 1, 0, 2, 30.0))
sketch10.addConstraint(Sketcher.Constraint("DistanceX", 0, 2, -1, 1, 80.0))
sketch10.addConstraint(Sketcher.Constraint("DistanceX", 4, 2, -1, 1, 31.0))
sketch10.addConstraint(Sketcher.Constraint("DistanceX", 8, 2, -1, 1, 55.0))
pad4 = doc.addObject("PartDesign::Pad", "Pad003")
body.addObject(pad4)
pad4.Profile = sketch10
pad4.Length = 4
pad4.Reversed = True

sketch11 = doc.addObject("Sketcher::SketchObject", "Sketch010")
body.addObject(sketch11)
sketch11.AttachmentSupport = (doc.XZ_Plane, [""])
sketch11.MapMode = "FlatFace"
sketch11.AttachmentOffset = App.Placement(App.Vector(0, 0, -20), App.Rotation())
sketch11.addGeometry(Part.LineSegment(App.Vector(-42, 4, 0), App.Vector(-65, 4, 0)), False)
sketch11.addGeometry(Part.LineSegment(App.Vector(-65, 4, 0), App.Vector(-65, 17, 0)), False)
sketch11.addGeometry(Part.LineSegment(App.Vector(-65, 17, 0), App.Vector(-42, 17, 0)), False)
sketch11.addGeometry(Part.LineSegment(App.Vector(-42, 17, 0), App.Vector(-42, 4, 0)), False)
sketch11.addGeometry(Part.LineSegment(App.Vector(-28, 25, 0), App.Vector(-12, 25, 0)), False)
sketch11.addGeometry(Part.LineSegment(App.Vector(-12, 25, 0), App.Vector(-12, 4, 0)), False)
sketch11.addGeometry(Part.LineSegment(App.Vector(-12, 4, 0), App.Vector(-28, 4, 0)), False)
sketch11.addGeometry(Part.LineSegment(App.Vector(-28, 4, 0), App.Vector(-28, 25, 0)), False)
sketch11.addConstraint(Sketcher.Constraint("Coincident", 0, 2, 1, 1))
sketch11.addConstraint(Sketcher.Constraint("Coincident", 1, 2, 2, 1))
sketch11.addConstraint(Sketcher.Constraint("Coincident", 2, 2, 3, 1))
sketch11.addConstraint(Sketcher.Constraint("Coincident", 3, 2, 0, 1))
sketch11.addConstraint(Sketcher.Constraint("Coincident", 4, 2, 5, 1))
sketch11.addConstraint(Sketcher.Constraint("Coincident", 5, 2, 6, 1))
sketch11.addConstraint(Sketcher.Constraint("Coincident", 6, 2, 7, 1))
sketch11.addConstraint(Sketcher.Constraint("Coincident", 7, 2, 4, 1))
sketch11.addConstraint(Sketcher.Constraint("Horizontal", 0))
sketch11.addConstraint(Sketcher.Constraint("Vertical", 1))
sketch11.addConstraint(Sketcher.Constraint("Horizontal", 2))
sketch11.addConstraint(Sketcher.Constraint("Vertical", 3))
sketch11.addConstraint(Sketcher.Constraint("Horizontal", 4))
sketch11.addConstraint(Sketcher.Constraint("Vertical", 5))
sketch11.addConstraint(Sketcher.Constraint("Horizontal", 6))
sketch11.addConstraint(Sketcher.Constraint("Vertical", 7))
sketch11.addConstraint(Sketcher.Constraint("Horizontal", 3, 2, 5, 2))
sketch11.addConstraint(Sketcher.Constraint("DistanceX", 4, 1, 4, 2, 16.5))
sketch11.addConstraint(Sketcher.Constraint("DistanceY", 5, 2, 5, 1, 21.0))
sketch11.addConstraint(Sketcher.Constraint("DistanceX", 0, 2, -1, 1, 65.0))
sketch11.addConstraint(Sketcher.Constraint("DistanceY", -1, 1, 0, 2, 4.0))
sketch11.addConstraint(Sketcher.Constraint("DistanceX", 4, 2, -1, 1, 12.0))
sketch11.addConstraint(Sketcher.Constraint("DistanceX", 0, 2, 0, 1, 23.247))
sketch11.addConstraint(Sketcher.Constraint("DistanceY", 1, 1, 1, 2, 13.4715))
pad5 = doc.addObject("PartDesign::Pad", "Pad004")
body.addObject(pad5)
pad5.Profile = sketch11
pad5.Length = 4
pad5.Reversed = True

sketch12 = doc.addObject("Sketcher::SketchObject", "Sketch011")
body.addObject(sketch12)
sketch12.AttachmentSupport = (doc.XZ_Plane, [""])
sketch12.MapMode = "FlatFace"
sketch12.AttachmentOffset = App.Placement(App.Vector(0, 0, -20), App.Rotation())
sketch12.addGeometry(Part.LineSegment(App.Vector(-69, 6, 0), App.Vector(-69, 26, 0)), False)
sketch12.addGeometry(Part.LineSegment(App.Vector(-69, 26, 0), App.Vector(-17, 26, 0)), False)
sketch12.addGeometry(Part.LineSegment(App.Vector(-17, 26, 0), App.Vector(-17, 6, 0)), False)
sketch12.addGeometry(Part.LineSegment(App.Vector(-17, 6, 0), App.Vector(-69, 6, 0)), False)
sketch12.addConstraint(Sketcher.Constraint("Coincident", 0, 2, 1, 1))
sketch12.addConstraint(Sketcher.Constraint("Coincident", 1, 2, 2, 1))
sketch12.addConstraint(Sketcher.Constraint("Coincident", 2, 2, 3, 1))
sketch12.addConstraint(Sketcher.Constraint("Coincident", 3, 2, 0, 1))
sketch12.addConstraint(Sketcher.Constraint("Vertical", 0))
sketch12.addConstraint(Sketcher.Constraint("Horizontal", 1))
sketch12.addConstraint(Sketcher.Constraint("Vertical", 2))
sketch12.addConstraint(Sketcher.Constraint("Horizontal", 3))
sketch12.addConstraint(Sketcher.Constraint("DistanceX", 1, 1, 1, 2, 52.0))
sketch12.addConstraint(Sketcher.Constraint("DistanceY", 0, 1, 0, 2, 20.0))
sketch12.addConstraint(Sketcher.Constraint("DistanceX", 0, 2, -1, 1, 69.0))
sketch12.addConstraint(Sketcher.Constraint("DistanceY", -1, 1, 0, 2, 26.0))
pad6 = doc.addObject("PartDesign::Pad", "Pad005")
body.addObject(pad6)
pad6.Profile = sketch12
pad6.Length = 3
pad6.Reversed = True

sketch13 = doc.addObject("Sketcher::SketchObject", "Sketch012")
body.addObject(sketch13)
sketch13.AttachmentSupport = (doc.XZ_Plane, [""])
sketch13.MapMode = "FlatFace"
sketch13.addGeometry(Part.LineSegment(App.Vector(-69, 36, 0), App.Vector(-69, 30, 0)), False)
sketch13.addGeometry(Part.LineSegment(App.Vector(-69, 30, 0), App.Vector(-80, 30, 0)), False)
sketch13.addGeometry(Part.LineSegment(App.Vector(-80, 30, 0), App.Vector(-80, 36, 0)), False)
sketch13.addGeometry(Part.LineSegment(App.Vector(-80, 36, 0), App.Vector(-74.8, 41.5, 0)), False)
sketch13.addGeometry(Part.LineSegment(App.Vector(-74.8, 41.5, 0), App.Vector(-69, 36, 0)), False)
sketch13.addGeometry(Part.Circle(App.Vector(-74.5, 36, 0), App.Vector(0, 0, 1), 1.2), False)
sketch13.addGeometry(Part.LineSegment(App.Vector(0, 30, 0), App.Vector(-11, 30, 0)), False)
sketch13.addGeometry(Part.LineSegment(App.Vector(-11, 30, 0), App.Vector(-11, 36, 0)), False)
sketch13.addGeometry(Part.LineSegment(App.Vector(-11, 36, 0), App.Vector(-5.5, 41.8, 0)), False)
sketch13.addGeometry(Part.LineSegment(App.Vector(-5.5, 41.8, 0), App.Vector(0, 36, 0)), False)
sketch13.addGeometry(Part.LineSegment(App.Vector(0, 36, 0), App.Vector(0, 30, 0)), False)
sketch13.addGeometry(Part.Circle(App.Vector(-5.5, 36, 0), App.Vector(0, 0, 1), 1.2), False)
sketch13.addGeometry(Part.LineSegment(App.Vector(-80, 0, 0), App.Vector(-69, 0, 0)), False)
sketch13.addGeometry(Part.LineSegment(App.Vector(-69, 0, 0), App.Vector(-69, -6, 0)), False)
sketch13.addGeometry(Part.LineSegment(App.Vector(-69, -6, 0), App.Vector(-74.8, -11.5, 0)), False)
sketch13.addGeometry(Part.LineSegment(App.Vector(-74.8, -11.5, 0), App.Vector(-80, -6, 0)), False)
sketch13.addGeometry(Part.LineSegment(App.Vector(-80, -6, 0), App.Vector(-80, 0, 0)), False)
sketch13.addGeometry(Part.Circle(App.Vector(-74.5, -6, 0), App.Vector(0, 0, 1), 1.2), False)
sketch13.addGeometry(Part.LineSegment(App.Vector(-11, -6, 0), App.Vector(-11, 0, 0)), False)
sketch13.addGeometry(Part.LineSegment(App.Vector(-11, 0, 0), App.Vector(0, 0, 0)), False)
sketch13.addGeometry(Part.LineSegment(App.Vector(0, 0, 0), App.Vector(0, -6, 0)), False)
sketch13.addGeometry(Part.LineSegment(App.Vector(0, -6, 0), App.Vector(-5.5, -11.8, 0)), False)
sketch13.addGeometry(Part.LineSegment(App.Vector(-5.5, -11.8, 0), App.Vector(-11, -6, 0)), False)
sketch13.addGeometry(Part.Circle(App.Vector(-5.5, -6, 0), App.Vector(0, 0, 1), 1.2), False)
sketch13.addConstraint(Sketcher.Constraint("Coincident", 0, 2, 1, 1))
sketch13.addConstraint(Sketcher.Constraint("Coincident", 1, 2, 2, 1))
sketch13.addConstraint(Sketcher.Constraint("Coincident", 2, 2, 3, 1))
sketch13.addConstraint(Sketcher.Constraint("Coincident", 3, 2, 4, 1))
sketch13.addConstraint(Sketcher.Constraint("Coincident", 4, 2, 0, 1))
sketch13.addConstraint(Sketcher.Constraint("Coincident", 6, 2, 7, 1))
sketch13.addConstraint(Sketcher.Constraint("Coincident", 7, 2, 8, 1))
sketch13.addConstraint(Sketcher.Constraint("Coincident", 8, 2, 9, 1))
sketch13.addConstraint(Sketcher.Constraint("Coincident", 9, 2, 10, 1))
sketch13.addConstraint(Sketcher.Constraint("Coincident", 10, 2, 6, 1))
sketch13.addConstraint(Sketcher.Constraint("Coincident", 12, 2, 13, 1))
sketch13.addConstraint(Sketcher.Constraint("Coincident", 13, 2, 14, 1))
sketch13.addConstraint(Sketcher.Constraint("Coincident", 14, 2, 15, 1))
sketch13.addConstraint(Sketcher.Constraint("Coincident", 15, 2, 16, 1))
sketch13.addConstraint(Sketcher.Constraint("Coincident", 16, 2, 12, 1))
sketch13.addConstraint(Sketcher.Constraint("Coincident", 18, 2, 19, 1))
sketch13.addConstraint(Sketcher.Constraint("Coincident", 19, 2, 20, 1))
sketch13.addConstraint(Sketcher.Constraint("Coincident", 20, 2, 21, 1))
sketch13.addConstraint(Sketcher.Constraint("Coincident", 21, 2, 22, 1))
sketch13.addConstraint(Sketcher.Constraint("Coincident", 22, 2, 18, 1))
sketch13.addConstraint(Sketcher.Constraint("Vertical", 0))
sketch13.addConstraint(Sketcher.Constraint("Horizontal", 1))
sketch13.addConstraint(Sketcher.Constraint("Vertical", 2))
sketch13.addConstraint(Sketcher.Constraint("Horizontal", 6))
sketch13.addConstraint(Sketcher.Constraint("Vertical", 7))
sketch13.addConstraint(Sketcher.Constraint("Vertical", 10))
sketch13.addConstraint(Sketcher.Constraint("Horizontal", 12))
sketch13.addConstraint(Sketcher.Constraint("Vertical", 13))
sketch13.addConstraint(Sketcher.Constraint("Vertical", 16))
sketch13.addConstraint(Sketcher.Constraint("Vertical", 18))
sketch13.addConstraint(Sketcher.Constraint("Horizontal", 19))
sketch13.addConstraint(Sketcher.Constraint("Vertical", 20))
sketch13.addConstraint(Sketcher.Constraint("Coincident", 19, 2, -1, 1))
sketch13.addConstraint(Sketcher.Constraint("Equal", 5, 11))
sketch13.addConstraint(Sketcher.Constraint("Equal", 11, 17))
sketch13.addConstraint(Sketcher.Constraint("Equal", 17, 23))
sketch13.addConstraint(Sketcher.Constraint("PointOnObject", 9, 2, -2))
sketch13.addConstraint(Sketcher.Constraint("PointOnObject", 12, 2, -1))
sketch13.addConstraint(Sketcher.Constraint("Perpendicular", 3, 4))
sketch13.addConstraint(Sketcher.Constraint("Perpendicular", 14, 15))
sketch13.addConstraint(Sketcher.Constraint("Parallel", 8, 21))
sketch13.addConstraint(Sketcher.Constraint("Parallel", 9, 22))
sketch13.addConstraint(Sketcher.Constraint("Horizontal", 5, 3, 11, 3))
sketch13.addConstraint(Sketcher.Constraint("Horizontal", 17, 3, 23, 3))
sketch13.addConstraint(Sketcher.Constraint("Horizontal", 11, 3, 2, 2))
sketch13.addConstraint(Sketcher.Constraint("Horizontal", 2, 2, 4, 2))
sketch13.addConstraint(Sketcher.Constraint("Horizontal", 1, 2, 6, 2))
sketch13.addConstraint(Sketcher.Constraint("Horizontal", 4, 2, 7, 2))
sketch13.addConstraint(Sketcher.Constraint("Horizontal", 7, 2, 9, 2))
sketch13.addConstraint(Sketcher.Constraint("Horizontal", 23, 3, 13, 2))
sketch13.addConstraint(Sketcher.Constraint("Horizontal", 13, 2, 15, 2))
sketch13.addConstraint(Sketcher.Constraint("Horizontal", 15, 2, 20, 2))
sketch13.addConstraint(Sketcher.Constraint("Horizontal", 20, 2, 22, 2))
sketch13.addConstraint(Sketcher.Constraint("Vertical", 5, 3, 17, 3))
sketch13.addConstraint(Sketcher.Constraint("Vertical", 11, 3, 23, 3))
sketch13.addConstraint(Sketcher.Constraint("Vertical", 23, 3, 8, 2))
sketch13.addConstraint(Sketcher.Constraint("Vertical", 4, 2, 12, 2))
sketch13.addConstraint(Sketcher.Constraint("Vertical", 3, 2, 14, 2))
sketch13.addConstraint(Sketcher.Constraint("Vertical", 2, 2, 15, 2))
sketch13.addConstraint(Sketcher.Constraint("Vertical", 7, 2, 18, 2))
sketch13.addConstraint(Sketcher.Constraint("Vertical", 8, 2, 21, 2))
sketch13.addConstraint(Sketcher.Constraint("Equal", 1, 6))
sketch13.addConstraint(Sketcher.Constraint("Equal", 10, 13))
sketch13.addConstraint(Sketcher.Constraint("Equal", 4, 8))
sketch13.addConstraint(Sketcher.Constraint("Diameter", 5, 2.5))
sketch13.addConstraint(Sketcher.Constraint("DistanceY", 0, 2, 0, 1, 6.0))
sketch13.addConstraint(Sketcher.Constraint("Distance", 4, 8.0))
sketch13.addConstraint(Sketcher.Constraint("DistanceX", 1, 2, 1, 1, 11.0))
sketch13.addConstraint(Sketcher.Constraint("DistanceY", -1, 1, 5, 3, 36.0))
sketch13.addConstraint(Sketcher.Constraint("DistanceX", 0, 2, -1, 1, 69.0))
sketch13.addConstraint(Sketcher.Constraint("DistanceX", 5, 3, 11, 3, 69.0))
pad7 = doc.addObject("PartDesign::Pad", "Pad006")
body.addObject(pad7)
pad7.Profile = sketch13
pad7.Length = 3
pad7.Reversed = True

doc.recompute()
